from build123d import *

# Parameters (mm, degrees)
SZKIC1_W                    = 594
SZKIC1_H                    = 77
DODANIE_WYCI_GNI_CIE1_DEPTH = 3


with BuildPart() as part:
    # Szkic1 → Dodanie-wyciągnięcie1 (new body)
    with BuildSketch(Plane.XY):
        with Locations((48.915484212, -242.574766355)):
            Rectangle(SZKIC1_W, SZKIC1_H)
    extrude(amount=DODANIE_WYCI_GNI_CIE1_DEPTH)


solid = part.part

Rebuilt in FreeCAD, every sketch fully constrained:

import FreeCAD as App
import Part
import Sketcher
from FreeCAD import Vector


def add_polygon(sketch, points):
    """Adds a closed chain of lines whose ends are joined by coincident constraints."""
    first, n = sketch.GeometryCount, len(points)
    for a, b in zip(points, points[1:] + points[:1]):
        sketch.addGeometry(Part.LineSegment(App.Vector(*a, 0), App.Vector(*b, 0)), False)
    for i in range(n):
        sketch.addConstraint(Sketcher.Constraint("Coincident", first + i, 2, first + (i + 1) % n, 1))

doc = App.newDocument("Part")
body = doc.addObject("PartDesign::Body", "Body")

sketch1 = body.newObject("Sketcher::SketchObject", "Sketch")
sketch1.AttachmentSupport = (doc.getObject("XY_Plane"), [""])
sketch1.MapMode = "FlatFace"
add_polygon(sketch1, [(-248.084516, -204.074766), (-248.084516, -281.074766), (345.915484, -281.074766), (345.915484, -204.074766)])
sketch1.addConstraint([
    Sketcher.Constraint("Vertical", 0),
    Sketcher.Constraint("Horizontal", 1),
    Sketcher.Constraint("Vertical", 2),
    Sketcher.Constraint("Horizontal", 3),
    Sketcher.Constraint("DistanceX", 1, 1, 1, 2, 594.0),
    Sketcher.Constraint("DistanceY", 0, 2, 0, 1, 77.0),
    Sketcher.Constraint("DistanceX", 0, 2, -1, 1, 248.084516),
    Sketcher.Constraint("DistanceY", 0, 2, -1, 1, 281.074766),
])
pad1 = body.newObject("PartDesign::Pad", "Pad")
pad1.Profile = sketch1
pad1.Length = 3

doc.recompute()
